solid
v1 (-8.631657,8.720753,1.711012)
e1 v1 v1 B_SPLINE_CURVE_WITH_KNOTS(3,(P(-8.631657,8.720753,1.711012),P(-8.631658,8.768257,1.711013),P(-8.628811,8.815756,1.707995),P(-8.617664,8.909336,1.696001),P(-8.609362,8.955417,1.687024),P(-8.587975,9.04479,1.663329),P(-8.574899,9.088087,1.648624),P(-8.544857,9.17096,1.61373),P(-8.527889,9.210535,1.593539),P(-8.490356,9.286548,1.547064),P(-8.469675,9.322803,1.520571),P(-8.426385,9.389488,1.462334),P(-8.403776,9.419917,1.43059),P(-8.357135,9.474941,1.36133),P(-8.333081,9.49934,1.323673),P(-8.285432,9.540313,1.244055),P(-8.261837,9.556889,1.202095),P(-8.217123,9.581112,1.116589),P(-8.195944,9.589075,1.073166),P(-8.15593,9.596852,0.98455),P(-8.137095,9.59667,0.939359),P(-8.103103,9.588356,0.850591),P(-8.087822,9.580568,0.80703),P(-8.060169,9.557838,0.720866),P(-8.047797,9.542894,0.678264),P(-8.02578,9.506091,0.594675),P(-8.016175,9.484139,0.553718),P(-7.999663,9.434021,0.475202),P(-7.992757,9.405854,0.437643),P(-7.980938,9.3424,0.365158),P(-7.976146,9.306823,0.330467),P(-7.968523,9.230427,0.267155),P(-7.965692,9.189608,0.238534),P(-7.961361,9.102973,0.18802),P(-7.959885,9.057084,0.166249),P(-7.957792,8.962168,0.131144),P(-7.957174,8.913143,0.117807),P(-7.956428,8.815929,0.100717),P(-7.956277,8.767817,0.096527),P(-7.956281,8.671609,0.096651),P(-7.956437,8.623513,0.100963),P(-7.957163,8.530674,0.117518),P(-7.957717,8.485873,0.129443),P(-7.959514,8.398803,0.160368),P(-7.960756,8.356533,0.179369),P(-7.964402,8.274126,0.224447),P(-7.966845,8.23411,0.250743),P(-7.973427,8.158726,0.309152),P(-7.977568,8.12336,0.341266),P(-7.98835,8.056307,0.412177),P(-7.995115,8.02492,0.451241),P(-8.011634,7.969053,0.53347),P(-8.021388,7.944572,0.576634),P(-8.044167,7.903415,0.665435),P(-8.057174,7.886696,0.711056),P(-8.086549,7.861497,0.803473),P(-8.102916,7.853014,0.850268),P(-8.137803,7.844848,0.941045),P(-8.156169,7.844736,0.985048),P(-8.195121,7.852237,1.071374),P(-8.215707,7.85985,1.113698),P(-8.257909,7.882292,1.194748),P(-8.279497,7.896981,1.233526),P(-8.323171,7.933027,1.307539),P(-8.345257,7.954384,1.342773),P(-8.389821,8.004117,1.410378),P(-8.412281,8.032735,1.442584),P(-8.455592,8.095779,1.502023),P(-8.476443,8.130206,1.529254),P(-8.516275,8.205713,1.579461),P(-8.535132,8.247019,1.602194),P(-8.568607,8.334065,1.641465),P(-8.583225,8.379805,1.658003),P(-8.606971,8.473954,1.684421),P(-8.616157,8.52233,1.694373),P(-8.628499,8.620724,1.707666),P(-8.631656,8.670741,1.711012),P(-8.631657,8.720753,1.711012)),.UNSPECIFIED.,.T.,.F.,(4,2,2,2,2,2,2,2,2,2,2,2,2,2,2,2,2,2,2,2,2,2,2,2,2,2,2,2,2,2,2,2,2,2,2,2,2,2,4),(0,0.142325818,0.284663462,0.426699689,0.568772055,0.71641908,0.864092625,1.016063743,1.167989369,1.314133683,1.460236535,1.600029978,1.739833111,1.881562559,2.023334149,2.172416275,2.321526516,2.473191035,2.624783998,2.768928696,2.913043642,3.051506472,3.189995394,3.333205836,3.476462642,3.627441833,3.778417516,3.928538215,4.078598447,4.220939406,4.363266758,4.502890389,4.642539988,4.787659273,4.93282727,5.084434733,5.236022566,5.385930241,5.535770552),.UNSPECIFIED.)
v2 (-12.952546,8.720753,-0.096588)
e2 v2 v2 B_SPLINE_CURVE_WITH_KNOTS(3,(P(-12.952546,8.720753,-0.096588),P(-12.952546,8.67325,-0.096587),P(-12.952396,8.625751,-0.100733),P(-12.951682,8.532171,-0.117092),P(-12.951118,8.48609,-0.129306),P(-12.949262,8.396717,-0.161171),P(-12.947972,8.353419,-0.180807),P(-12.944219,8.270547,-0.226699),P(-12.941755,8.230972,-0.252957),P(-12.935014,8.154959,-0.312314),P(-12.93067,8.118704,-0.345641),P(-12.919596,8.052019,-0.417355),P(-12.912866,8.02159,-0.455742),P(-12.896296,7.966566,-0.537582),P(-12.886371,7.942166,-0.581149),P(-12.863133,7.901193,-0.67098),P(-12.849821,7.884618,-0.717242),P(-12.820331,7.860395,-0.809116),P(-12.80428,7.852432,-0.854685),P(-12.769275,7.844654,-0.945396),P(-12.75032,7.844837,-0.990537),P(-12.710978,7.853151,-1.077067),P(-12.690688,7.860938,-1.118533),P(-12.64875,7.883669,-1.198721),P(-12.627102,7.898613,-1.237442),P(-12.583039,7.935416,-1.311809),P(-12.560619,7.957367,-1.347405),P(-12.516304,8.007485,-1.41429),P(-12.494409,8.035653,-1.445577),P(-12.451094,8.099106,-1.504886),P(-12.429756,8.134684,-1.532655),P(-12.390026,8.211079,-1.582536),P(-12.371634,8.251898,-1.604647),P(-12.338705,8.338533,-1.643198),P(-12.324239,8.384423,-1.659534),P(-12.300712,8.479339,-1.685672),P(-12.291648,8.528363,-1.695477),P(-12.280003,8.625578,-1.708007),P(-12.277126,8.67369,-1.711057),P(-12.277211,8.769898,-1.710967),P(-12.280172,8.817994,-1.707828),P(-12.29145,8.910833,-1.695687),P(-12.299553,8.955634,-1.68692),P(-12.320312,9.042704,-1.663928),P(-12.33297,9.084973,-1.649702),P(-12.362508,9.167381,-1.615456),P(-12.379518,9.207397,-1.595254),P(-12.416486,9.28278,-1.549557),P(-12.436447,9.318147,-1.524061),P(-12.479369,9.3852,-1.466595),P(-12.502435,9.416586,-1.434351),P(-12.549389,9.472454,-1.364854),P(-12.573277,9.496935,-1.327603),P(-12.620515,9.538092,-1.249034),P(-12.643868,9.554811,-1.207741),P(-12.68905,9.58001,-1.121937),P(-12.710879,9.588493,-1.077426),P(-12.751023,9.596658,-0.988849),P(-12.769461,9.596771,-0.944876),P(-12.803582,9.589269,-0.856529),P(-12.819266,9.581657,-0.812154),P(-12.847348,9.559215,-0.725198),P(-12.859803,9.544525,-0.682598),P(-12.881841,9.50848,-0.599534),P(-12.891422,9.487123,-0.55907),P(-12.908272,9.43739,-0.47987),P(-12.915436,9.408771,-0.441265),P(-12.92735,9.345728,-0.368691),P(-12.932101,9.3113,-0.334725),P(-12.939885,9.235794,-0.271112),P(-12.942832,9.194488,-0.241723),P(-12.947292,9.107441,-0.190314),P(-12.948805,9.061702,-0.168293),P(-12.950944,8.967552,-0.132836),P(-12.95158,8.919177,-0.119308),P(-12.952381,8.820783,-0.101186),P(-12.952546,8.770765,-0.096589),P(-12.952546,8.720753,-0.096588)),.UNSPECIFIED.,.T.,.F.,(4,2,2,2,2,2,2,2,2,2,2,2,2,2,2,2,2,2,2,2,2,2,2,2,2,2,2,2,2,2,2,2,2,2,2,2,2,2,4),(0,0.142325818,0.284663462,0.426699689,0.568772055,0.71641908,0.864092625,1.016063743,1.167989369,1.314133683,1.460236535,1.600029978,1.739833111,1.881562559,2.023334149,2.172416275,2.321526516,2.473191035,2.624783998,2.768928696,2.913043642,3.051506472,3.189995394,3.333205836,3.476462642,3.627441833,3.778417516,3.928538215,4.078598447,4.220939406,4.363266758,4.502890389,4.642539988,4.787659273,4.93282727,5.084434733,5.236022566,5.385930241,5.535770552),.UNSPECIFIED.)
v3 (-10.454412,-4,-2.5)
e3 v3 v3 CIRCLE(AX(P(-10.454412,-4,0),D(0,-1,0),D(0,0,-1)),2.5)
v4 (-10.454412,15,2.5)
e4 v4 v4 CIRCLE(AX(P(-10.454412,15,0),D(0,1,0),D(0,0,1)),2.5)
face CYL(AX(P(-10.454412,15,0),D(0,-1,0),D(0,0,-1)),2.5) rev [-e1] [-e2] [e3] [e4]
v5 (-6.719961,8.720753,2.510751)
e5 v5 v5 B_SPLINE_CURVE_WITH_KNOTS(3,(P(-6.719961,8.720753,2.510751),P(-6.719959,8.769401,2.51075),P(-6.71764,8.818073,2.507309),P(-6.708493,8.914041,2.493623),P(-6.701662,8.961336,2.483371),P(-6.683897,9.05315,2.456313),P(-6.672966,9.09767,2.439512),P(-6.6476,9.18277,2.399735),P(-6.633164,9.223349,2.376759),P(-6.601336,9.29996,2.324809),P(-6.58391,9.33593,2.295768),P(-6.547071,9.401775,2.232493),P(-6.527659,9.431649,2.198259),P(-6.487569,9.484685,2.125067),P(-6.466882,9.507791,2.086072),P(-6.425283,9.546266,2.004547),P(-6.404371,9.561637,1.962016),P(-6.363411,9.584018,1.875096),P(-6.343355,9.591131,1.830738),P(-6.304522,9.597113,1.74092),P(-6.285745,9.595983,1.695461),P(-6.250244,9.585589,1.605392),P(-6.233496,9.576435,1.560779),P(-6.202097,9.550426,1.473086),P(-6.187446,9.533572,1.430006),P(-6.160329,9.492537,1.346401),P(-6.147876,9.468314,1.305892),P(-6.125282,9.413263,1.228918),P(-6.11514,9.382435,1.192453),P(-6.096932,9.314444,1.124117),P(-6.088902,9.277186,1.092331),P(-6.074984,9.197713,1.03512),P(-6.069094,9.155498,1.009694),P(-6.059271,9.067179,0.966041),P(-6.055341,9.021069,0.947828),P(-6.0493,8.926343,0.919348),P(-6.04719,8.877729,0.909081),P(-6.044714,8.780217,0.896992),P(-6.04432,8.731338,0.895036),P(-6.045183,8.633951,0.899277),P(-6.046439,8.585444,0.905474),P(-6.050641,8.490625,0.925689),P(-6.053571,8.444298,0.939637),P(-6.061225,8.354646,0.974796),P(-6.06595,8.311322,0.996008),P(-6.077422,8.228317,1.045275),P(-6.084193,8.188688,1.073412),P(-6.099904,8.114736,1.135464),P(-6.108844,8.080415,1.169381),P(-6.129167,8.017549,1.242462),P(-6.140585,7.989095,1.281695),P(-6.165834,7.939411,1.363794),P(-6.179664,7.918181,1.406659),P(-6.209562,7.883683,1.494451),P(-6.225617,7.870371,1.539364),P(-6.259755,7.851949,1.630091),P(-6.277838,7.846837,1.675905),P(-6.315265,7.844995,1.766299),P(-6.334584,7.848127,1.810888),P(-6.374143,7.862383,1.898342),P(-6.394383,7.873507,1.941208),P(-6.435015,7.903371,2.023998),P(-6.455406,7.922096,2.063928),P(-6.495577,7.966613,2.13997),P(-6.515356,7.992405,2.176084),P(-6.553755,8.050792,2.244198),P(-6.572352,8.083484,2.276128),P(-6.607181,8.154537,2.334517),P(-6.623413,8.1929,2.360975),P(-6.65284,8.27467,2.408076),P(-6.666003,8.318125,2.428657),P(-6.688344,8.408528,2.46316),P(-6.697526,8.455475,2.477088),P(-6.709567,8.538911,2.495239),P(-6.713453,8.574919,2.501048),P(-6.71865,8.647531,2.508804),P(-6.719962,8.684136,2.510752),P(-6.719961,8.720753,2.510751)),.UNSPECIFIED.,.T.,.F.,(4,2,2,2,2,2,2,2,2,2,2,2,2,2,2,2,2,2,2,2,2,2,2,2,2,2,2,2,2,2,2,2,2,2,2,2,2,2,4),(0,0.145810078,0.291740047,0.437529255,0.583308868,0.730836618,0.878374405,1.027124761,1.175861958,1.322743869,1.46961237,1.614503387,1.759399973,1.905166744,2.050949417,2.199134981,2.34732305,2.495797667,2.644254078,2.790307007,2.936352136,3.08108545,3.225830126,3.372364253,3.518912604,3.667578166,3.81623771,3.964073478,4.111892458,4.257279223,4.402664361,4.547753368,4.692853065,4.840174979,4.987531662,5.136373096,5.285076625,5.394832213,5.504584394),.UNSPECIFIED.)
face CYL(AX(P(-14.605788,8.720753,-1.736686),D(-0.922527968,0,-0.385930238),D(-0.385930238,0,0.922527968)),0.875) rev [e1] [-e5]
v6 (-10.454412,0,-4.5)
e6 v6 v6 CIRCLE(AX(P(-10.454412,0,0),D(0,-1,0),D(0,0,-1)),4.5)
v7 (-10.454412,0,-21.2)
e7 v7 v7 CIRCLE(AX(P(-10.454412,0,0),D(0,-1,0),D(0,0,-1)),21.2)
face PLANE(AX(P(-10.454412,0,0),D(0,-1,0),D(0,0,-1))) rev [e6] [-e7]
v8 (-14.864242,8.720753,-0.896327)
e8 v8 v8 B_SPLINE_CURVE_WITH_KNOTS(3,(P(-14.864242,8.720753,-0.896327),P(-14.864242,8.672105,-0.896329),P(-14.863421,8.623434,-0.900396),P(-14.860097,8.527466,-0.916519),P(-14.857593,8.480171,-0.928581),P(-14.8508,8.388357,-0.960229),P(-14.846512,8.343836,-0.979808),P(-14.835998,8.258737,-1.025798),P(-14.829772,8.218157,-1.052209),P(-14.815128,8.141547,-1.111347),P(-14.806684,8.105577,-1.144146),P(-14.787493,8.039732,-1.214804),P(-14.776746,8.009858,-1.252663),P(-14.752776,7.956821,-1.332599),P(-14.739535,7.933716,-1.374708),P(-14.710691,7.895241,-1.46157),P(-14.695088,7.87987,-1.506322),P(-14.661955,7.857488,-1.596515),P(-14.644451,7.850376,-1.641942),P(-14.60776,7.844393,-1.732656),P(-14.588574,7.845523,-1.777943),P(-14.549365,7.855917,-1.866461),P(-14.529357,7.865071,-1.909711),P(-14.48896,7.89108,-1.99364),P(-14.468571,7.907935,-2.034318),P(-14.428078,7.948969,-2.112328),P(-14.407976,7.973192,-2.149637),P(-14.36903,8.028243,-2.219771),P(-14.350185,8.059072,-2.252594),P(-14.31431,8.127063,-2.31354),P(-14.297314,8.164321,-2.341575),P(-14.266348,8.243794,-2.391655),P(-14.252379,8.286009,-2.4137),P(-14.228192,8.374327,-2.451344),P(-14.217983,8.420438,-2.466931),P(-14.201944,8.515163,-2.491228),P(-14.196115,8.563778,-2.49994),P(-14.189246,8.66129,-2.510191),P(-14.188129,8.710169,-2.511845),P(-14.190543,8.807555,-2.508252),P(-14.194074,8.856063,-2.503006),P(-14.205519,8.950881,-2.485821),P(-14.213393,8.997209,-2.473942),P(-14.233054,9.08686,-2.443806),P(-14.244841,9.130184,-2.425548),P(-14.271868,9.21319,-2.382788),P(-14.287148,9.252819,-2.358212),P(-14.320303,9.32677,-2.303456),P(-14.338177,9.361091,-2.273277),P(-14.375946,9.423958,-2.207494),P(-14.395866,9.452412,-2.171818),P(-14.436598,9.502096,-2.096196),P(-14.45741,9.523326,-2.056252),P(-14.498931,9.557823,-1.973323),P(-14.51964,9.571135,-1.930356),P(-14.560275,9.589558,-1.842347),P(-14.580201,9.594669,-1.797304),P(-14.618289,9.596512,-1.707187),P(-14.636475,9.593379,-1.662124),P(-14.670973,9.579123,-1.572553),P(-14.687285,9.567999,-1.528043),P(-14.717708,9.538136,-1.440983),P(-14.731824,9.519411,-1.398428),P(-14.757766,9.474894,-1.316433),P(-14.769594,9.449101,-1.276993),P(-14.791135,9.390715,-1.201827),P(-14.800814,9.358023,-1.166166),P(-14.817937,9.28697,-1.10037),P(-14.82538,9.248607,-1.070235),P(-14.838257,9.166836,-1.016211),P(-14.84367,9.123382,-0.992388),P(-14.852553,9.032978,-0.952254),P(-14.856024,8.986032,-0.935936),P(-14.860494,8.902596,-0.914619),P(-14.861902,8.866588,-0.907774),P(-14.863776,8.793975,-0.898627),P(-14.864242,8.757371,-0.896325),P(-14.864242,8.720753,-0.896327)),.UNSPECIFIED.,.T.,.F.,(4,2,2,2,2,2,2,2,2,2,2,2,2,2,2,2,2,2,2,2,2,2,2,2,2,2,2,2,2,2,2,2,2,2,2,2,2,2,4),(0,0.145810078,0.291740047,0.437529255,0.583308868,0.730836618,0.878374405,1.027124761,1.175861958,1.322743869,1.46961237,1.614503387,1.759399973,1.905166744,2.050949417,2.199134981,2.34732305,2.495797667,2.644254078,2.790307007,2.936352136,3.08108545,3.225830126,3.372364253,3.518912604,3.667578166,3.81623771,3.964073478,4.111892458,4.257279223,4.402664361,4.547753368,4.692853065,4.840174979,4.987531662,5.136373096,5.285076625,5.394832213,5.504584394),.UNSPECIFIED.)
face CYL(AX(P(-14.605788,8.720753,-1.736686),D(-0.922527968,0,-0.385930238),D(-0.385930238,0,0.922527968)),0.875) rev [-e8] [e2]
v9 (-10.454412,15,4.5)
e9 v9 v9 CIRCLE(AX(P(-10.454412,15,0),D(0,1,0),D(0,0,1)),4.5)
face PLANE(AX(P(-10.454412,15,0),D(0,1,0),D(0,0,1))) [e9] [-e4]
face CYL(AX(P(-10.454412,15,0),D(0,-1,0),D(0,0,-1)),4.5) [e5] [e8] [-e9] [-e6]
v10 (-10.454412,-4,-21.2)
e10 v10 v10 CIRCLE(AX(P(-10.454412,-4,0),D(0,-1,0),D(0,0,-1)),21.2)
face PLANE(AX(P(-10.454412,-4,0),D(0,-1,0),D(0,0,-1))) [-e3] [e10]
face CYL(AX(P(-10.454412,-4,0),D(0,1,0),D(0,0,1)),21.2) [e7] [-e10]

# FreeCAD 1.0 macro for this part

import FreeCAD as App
import Part
import Sketcher

doc = App.newDocument("Part")
body = doc.addObject("PartDesign::Body", "Body")

# Sketch on XZ plane
sketch1 = body.newObject("Sketcher::SketchObject", "Sketch")
sketch1.AttachmentSupport = (doc.getObject("XZ_Plane"), [""])
sketch1.MapMode = "FlatFace"
sketch1.addGeometry([
    Part.Circle(App.Vector(-10.5, 0, 0), App.Vector(0, 0, 1), 4.5),
    Part.Circle(App.Vector(-10.5, 0, 0), App.Vector(0, 0, 1), 2.5),
], False)
sketch1.addConstraint([
    Sketcher.Constraint("Coincident", 1, 3, 0, 3),
    Sketcher.Constraint("PointOnObject", 0, 3, -1),
    Sketcher.Constraint("Diameter", 0, 9.0),
    Sketcher.Constraint("Diameter", 1, 5.0),
    Sketcher.Constraint("DistanceX", 0, 3, -1, 1, 10.454412),
])
pad1 = body.newObject("PartDesign::Pad", "Pad")
pad1.Profile = sketch1
pad1.Length = 15
pad1.Reversed = True

# Sketch on XZ plane
sketch2 = body.newObject("Sketcher::SketchObject", "Sketch001")
sketch2.AttachmentSupport = (doc.getObject("XZ_Plane"), [""])
sketch2.MapMode = "FlatFace"
sketch2.addGeometry(Part.Circle(App.Vector(-10, 0, 0), App.Vector(0, 0, 1), 21), False)
sketch2.addConstraint([
    Sketcher.Constraint("PointOnObject", 0, 3, -1),
    Sketcher.Constraint("Diameter", 0, 42.4),
    Sketcher.Constraint("DistanceX", 0, 3, -1, 1, 10.454412),
])
pad2 = body.newObject("PartDesign::Pad", "Pad001")
pad2.Profile = sketch2
pad2.Length = 4

# Sketch on XZ plane
sketch3 = body.newObject("Sketcher::SketchObject", "Sketch002")
sketch3.AttachmentSupport = (doc.getObject("XZ_Plane"), [""])
sketch3.MapMode = "FlatFace"
sketch3.AttachmentOffset = App.Placement(App.Vector(0, 0, 4), App.Rotation())
sketch3.addGeometry(Part.Circle(App.Vector(-10.5, 0, 0), App.Vector(0, 0, 1), 2.5), False)
sketch3.addConstraint([
    Sketcher.Constraint("PointOnObject", 0, 3, -1),
    Sketcher.Constraint("Diameter", 0, 5.0),
    Sketcher.Constraint("DistanceX", 0, 3, -1, 1, 10.454412),
])
pocket1 = body.newObject("PartDesign::Pocket", "Pocket")
pocket1.Profile = sketch3
pocket1.Length = 4

# Sketch on an angled plane
sketch4 = body.newObject("Sketcher::SketchObject", "Sketch003")
sketch4.Placement = App.Placement(App.Vector(-13.048686, 0, -5.458786), App.Rotation(App.Vector(0.385930238, 0, -0.922527968), App.Vector(0, -1, 0), App.Vector(-0.922527968, 0, -0.385930238), "ZXY"))
sketch4.addGeometry(Part.Circle(App.Vector(-4, -8.7, 0), App.Vector(0, 0, 1), 0.9), False)
sketch4.addConstraint([
    Sketcher.Constraint("Diameter", 0, 1.75),
    Sketcher.Constraint("DistanceX", 0, 3, -1, 1, 4.034674),
    Sketcher.Constraint("DistanceY", 0, 3, -1, 1, 8.720753),
])
doc.recompute()
hole = body.newObject("PartDesign::Hole", "Hole")
hole.Profile = sketch4
hole.ThreadType = "None"
hole.Diameter = 1.75
hole.DepthType = "Dimension"
hole.Depth = 31.5
hole.DrillPoint = "Angled"
hole.DrillPointAngle = 118

doc.recompute()
